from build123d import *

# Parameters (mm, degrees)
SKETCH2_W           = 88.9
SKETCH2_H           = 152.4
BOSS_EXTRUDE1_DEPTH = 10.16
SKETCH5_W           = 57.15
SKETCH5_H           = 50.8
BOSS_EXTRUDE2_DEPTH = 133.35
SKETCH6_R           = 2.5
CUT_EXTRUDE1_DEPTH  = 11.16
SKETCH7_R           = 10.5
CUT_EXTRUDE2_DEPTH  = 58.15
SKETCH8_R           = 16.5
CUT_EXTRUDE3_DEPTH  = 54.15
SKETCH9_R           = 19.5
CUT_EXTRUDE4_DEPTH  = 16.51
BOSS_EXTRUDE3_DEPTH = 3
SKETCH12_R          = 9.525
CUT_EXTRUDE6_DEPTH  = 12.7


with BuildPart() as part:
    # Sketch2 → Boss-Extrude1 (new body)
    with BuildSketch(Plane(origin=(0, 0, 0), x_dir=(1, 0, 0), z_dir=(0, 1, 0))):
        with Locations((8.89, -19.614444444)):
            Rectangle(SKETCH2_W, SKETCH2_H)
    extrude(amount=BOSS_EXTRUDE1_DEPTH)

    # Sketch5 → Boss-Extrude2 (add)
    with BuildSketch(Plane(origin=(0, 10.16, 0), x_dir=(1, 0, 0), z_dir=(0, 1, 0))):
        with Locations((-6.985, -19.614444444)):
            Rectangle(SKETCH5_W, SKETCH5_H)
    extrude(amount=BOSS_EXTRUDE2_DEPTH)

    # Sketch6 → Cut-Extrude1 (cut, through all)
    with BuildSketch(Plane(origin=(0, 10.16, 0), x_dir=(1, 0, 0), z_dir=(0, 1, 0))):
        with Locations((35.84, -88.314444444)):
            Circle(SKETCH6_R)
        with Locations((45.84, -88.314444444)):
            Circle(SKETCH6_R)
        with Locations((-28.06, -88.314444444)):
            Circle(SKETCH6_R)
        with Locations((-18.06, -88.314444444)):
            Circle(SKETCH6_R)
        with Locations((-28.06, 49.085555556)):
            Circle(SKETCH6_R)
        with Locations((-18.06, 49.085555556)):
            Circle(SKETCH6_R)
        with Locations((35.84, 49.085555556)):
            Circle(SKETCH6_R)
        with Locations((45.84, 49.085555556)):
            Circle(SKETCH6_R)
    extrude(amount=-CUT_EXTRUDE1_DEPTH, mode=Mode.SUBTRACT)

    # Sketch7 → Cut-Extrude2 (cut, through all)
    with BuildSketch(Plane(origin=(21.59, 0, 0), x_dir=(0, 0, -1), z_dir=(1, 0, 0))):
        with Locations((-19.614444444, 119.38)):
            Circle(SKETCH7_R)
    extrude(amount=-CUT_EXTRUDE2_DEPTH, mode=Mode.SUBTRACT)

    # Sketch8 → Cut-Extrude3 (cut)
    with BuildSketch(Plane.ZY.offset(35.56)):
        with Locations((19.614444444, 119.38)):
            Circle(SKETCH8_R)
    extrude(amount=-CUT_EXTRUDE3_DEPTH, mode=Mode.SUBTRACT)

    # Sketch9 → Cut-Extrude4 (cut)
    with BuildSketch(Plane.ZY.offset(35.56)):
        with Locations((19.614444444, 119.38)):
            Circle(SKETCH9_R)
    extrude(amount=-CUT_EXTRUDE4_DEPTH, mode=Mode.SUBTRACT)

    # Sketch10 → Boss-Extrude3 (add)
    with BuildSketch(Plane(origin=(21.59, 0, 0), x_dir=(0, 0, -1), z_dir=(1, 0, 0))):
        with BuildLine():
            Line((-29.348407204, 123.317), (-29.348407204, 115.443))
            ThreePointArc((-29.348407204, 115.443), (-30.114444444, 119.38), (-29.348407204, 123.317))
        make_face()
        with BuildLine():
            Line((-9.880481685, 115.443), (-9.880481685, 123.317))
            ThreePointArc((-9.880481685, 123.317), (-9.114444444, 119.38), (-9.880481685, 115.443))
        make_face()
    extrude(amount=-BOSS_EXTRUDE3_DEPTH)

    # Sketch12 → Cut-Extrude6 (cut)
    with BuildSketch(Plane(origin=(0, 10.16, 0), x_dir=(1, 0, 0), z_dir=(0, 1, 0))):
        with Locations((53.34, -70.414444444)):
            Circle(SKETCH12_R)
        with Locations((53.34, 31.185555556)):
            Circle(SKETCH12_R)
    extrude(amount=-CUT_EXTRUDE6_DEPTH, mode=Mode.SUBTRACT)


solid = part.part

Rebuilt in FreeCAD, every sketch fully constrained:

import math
import FreeCAD as App
import Part
import Sketcher
from FreeCAD import Vector
Q = App.Units.Quantity


def add_polygon(sketch, points):
    """Adds a closed chain of lines whose ends are joined by coincident constraints."""
    first, n = sketch.GeometryCount, len(points)
    for a, b in zip(points, points[1:] + points[:1]):
        sketch.addGeometry(Part.LineSegment(App.Vector(*a, 0), App.Vector(*b, 0)), False)
    for i in range(n):
        sketch.addConstraint(Sketcher.Constraint("Coincident", first + i, 2, first + (i + 1) % n, 1))

doc = App.newDocument("Part")
body = doc.addObject("PartDesign::Body", "Body")

# Sketch on XZ plane
sketch1 = doc.addObject("Sketcher::SketchObject", "Sketch")
body.addObject(sketch1)
sketch1.AttachmentSupport = (doc.XZ_Plane, [""])
sketch1.MapMode = "FlatFace"
add_polygon(sketch1, [(-36, -57), (-36, 96), (53, 96), (53, -57)])  # lines 0-3
sketch1.addConstraint([
    Sketcher.Constraint("Vertical", 0),
    Sketcher.Constraint("Horizontal", 1),
    Sketcher.Constraint("Vertical", 2),
    Sketcher.Constraint("Horizontal", 3),
    Sketcher.Constraint("DistanceY", 0, 1, 0, 2, Q("6 in")),
    Sketcher.Constraint("DistanceX", 1, 1, 1, 2, Q("3.5 in")),
    Sketcher.Constraint("DistanceX", 0, 2, -1, 1, Q("1.4 in")),
    Sketcher.Constraint("DistanceY", -1, 1, 0, 2, 95.814444),
])
pad1 = doc.addObject("PartDesign::Pad", "Pad")
body.addObject(pad1)
pad1.Profile = sketch1
pad1.Length = Q("0.4 in")
pad1.Reversed = True

# Sketch on XZ plane
sketch2 = doc.addObject("Sketcher::SketchObject", "Sketch001")
body.addObject(sketch2)
sketch2.AttachmentSupport = (doc.XZ_Plane, [""])
sketch2.MapMode = "FlatFace"
sketch2.AttachmentOffset = App.Placement(Vector(0, 0, -0.4 * 25.4), App.Rotation())
add_polygon(sketch2, [(-36, -6), (-36, 45), (22, 45), (22, -6)])  # lines 0-3
sketch2.addConstraint([
    Sketcher.Constraint("Vertical", 0),
    Sketcher.Constraint("Horizontal", 1),
    Sketcher.Constraint("Vertical", 2),
    Sketcher.Constraint("Horizontal", 3),
    Sketcher.Constraint("DistanceY", 0, 1, 0, 2, Q("2 in")),
    Sketcher.Constraint("DistanceX", 1, 1, 1, 2, Q("2.25 in")),
    Sketcher.Constraint("DistanceX", 0, 2, -1, 1, Q("1.4 in")),
    Sketcher.Constraint("DistanceY", -1, 1, 0, 2, 45.014444),
])
pad2 = doc.addObject("PartDesign::Pad", "Pad001")
body.addObject(pad2)
pad2.Profile = sketch2
pad2.Length = Q("5.25 in")
pad2.Reversed = True

# Sketch on XZ plane
sketch3 = doc.addObject("Sketcher::SketchObject", "Sketch002")
body.addObject(sketch3)
sketch3.AttachmentSupport = (doc.XZ_Plane, [""])
sketch3.MapMode = "FlatFace"
sketch3.AttachmentOffset = App.Placement(Vector(0, 0, -0.4 * 25.4), App.Rotation())
sketch3.addGeometry([
    Part.Circle(Vector(35.8, 88.3, 0), Vector(0, 0, 1), 2.5),  # 0
    Part.Circle(Vector(45.8, 88.3, 0), Vector(0, 0, 1), 2.5),  # 1
    Part.Circle(Vector(-28.1, 88.3, 0), Vector(0, 0, 1), 2.5),  # 2
    Part.Circle(Vector(-18.1, 88.3, 0), Vector(0, 0, 1), 2.5),  # 3
    Part.Circle(Vector(-28.1, -49.1, 0), Vector(0, 0, 1), 2.5),  # 4
    Part.Circle(Vector(-18.1, -49.1, 0), Vector(0, 0, 1), 2.5),  # 5
    Part.Circle(Vector(35.8, -49.1, 0), Vector(0, 0, 1), 2.5),  # 6
    Part.Circle(Vector(45.8, -49.1, 0), Vector(0, 0, 1), 2.5),  # 7
], False)
sketch3.addConstraint([
    Sketcher.Constraint("Equal", 0, 1),
    Sketcher.Constraint("Equal", 1, 2),
    Sketcher.Constraint("Equal", 2, 3),
    Sketcher.Constraint("Equal", 3, 4),
    Sketcher.Constraint("Equal", 4, 5),
    Sketcher.Constraint("Equal", 5, 6),
    Sketcher.Constraint("Equal", 6, 7),
    Sketcher.Constraint("Horizontal", 0, 3, 1, 3),
    Sketcher.Constraint("Horizontal", 1, 3, 2, 3),
    Sketcher.Constraint("Horizontal", 2, 3, 3, 3),
    Sketcher.Constraint("Horizontal", 4, 3, 5, 3),
    Sketcher.Constraint("Horizontal", 5, 3, 6, 3),
    Sketcher.Constraint("Horizontal", 6, 3, 7, 3),
    Sketcher.Constraint("Vertical", 2, 3, 4, 3),
    Sketcher.Constraint("Vertical", 3, 3, 5, 3),
    Sketcher.Constraint("Vertical", 0, 3, 6, 3),
    Sketcher.Constraint("Vertical", 1, 3, 7, 3),
    Sketcher.Constraint("Diameter", 0, 5.0),
    Sketcher.Constraint("DistanceX", -1, 1, 0, 3, 35.84),
    Sketcher.Constraint("DistanceX", -1, 1, 1, 3, 45.84),
    Sketcher.Constraint("DistanceX", 2, 3, -1, 1, 28.06),
    Sketcher.Constraint("DistanceX", 3, 3, -1, 1, 18.06),
    Sketcher.Constraint("DistanceY", 4, 3, 2, 3, 137.4),
    Sketcher.Constraint("DistanceY", -1, 1, 0, 3, 88.314444),
])
pocket1 = doc.addObject("PartDesign::Pocket", "Pocket")
body.addObject(pocket1)
pocket1.Profile = sketch3
pocket1.Type = "ThroughAll"
pocket1.Reversed = True

# Sketch on YZ plane
sketch4 = doc.addObject("Sketcher::SketchObject", "Sketch003")
body.addObject(sketch4)
sketch4.AttachmentSupport = (doc.YZ_Plane, [""])
sketch4.MapMode = "FlatFace"
sketch4.AttachmentOffset = App.Placement(Vector(0, 0, 0.85 * 25.4), App.Rotation())
sketch4.addGeometry(Part.Circle(Vector(119, 20, 0), Vector(0, 0, 1), 10), False)
sketch4.addConstraint([
    Sketcher.Constraint("DistanceX", -1, 1, 0, 3, Q("4.7 in")),
    Sketcher.Constraint("Diameter", 0, 21.0),
    Sketcher.Constraint("DistanceY", -1, 1, 0, 3, 19.614444),
])
pocket2 = doc.addObject("PartDesign::Pocket", "Pocket001")
body.addObject(pocket2)
pocket2.Profile = sketch4
pocket2.Type = "ThroughAll"

# Sketch on YZ plane
sketch5 = doc.addObject("Sketcher::SketchObject", "Sketch004")
body.addObject(sketch5)
sketch5.AttachmentSupport = (doc.YZ_Plane, [""])
sketch5.MapMode = "FlatFace"
sketch5.AttachmentOffset = App.Placement(Vector(0, 0, -1.4 * 25.4), App.Rotation())
sketch5.addGeometry(Part.Circle(Vector(119, 20, 0), Vector(0, 0, 1), 16), False)
sketch5.addConstraint([
    Sketcher.Constraint("DistanceX", -1, 1, 0, 3, Q("4.7 in")),
    Sketcher.Constraint("Diameter", 0, 33.0),
    Sketcher.Constraint("DistanceY", -1, 1, 0, 3, 19.614444),
])
pocket3 = doc.addObject("PartDesign::Pocket", "Pocket002")
body.addObject(pocket3)
pocket3.Profile = sketch5
pocket3.Length = 54.15
pocket3.Reversed = True

# Sketch on YZ plane
sketch6 = doc.addObject("Sketcher::SketchObject", "Sketch005")
body.addObject(sketch6)
sketch6.AttachmentSupport = (doc.YZ_Plane, [""])
sketch6.MapMode = "FlatFace"
sketch6.AttachmentOffset = App.Placement(Vector(0, 0, -1.4 * 25.4), App.Rotation())
sketch6.addGeometry(Part.Circle(Vector(119, 20, 0), Vector(0, 0, 1), 20), False)
sketch6.addConstraint([
    Sketcher.Constraint("DistanceX", -1, 1, 0, 3, Q("4.7 in")),
    Sketcher.Constraint("Diameter", 0, 39.0),
    Sketcher.Constraint("DistanceY", -1, 1, 0, 3, 19.614444),
])
pocket4 = doc.addObject("PartDesign::Pocket", "Pocket003")
body.addObject(pocket4)
pocket4.Profile = sketch6
pocket4.Length = Q("0.65 in")
pocket4.Reversed = True

# Sketch on YZ plane
sketch7 = doc.addObject("Sketcher::SketchObject", "Sketch006")
body.addObject(sketch7)
sketch7.AttachmentSupport = (doc.YZ_Plane, [""])
sketch7.MapMode = "FlatFace"
sketch7.AttachmentOffset = App.Placement(Vector(0, 0, 0.85 * 25.4), App.Rotation())
sketch7.addGeometry([
    Part.LineSegment(Vector(115, 29, 0), Vector(123, 29, 0)),
    Part.ArcOfCircle(Part.Circle(Vector(119, 20, 0), Vector(0, 0, 1), 11), math.radians(68), math.radians(112)),
    Part.LineSegment(Vector(123, 10, 0), Vector(115, 10, 0)),
    Part.ArcOfCircle(Part.Circle(Vector(119, 20, 0), Vector(0, 0, 1), 10), math.radians(-112), math.radians(-68)),
], False)
sketch7.addConstraint([
    Sketcher.Constraint("Coincident", 0, 1, 1, 2),
    Sketcher.Constraint("Coincident", 1, 1, 0, 2),
    Sketcher.Constraint("Coincident", 2, 1, 3, 2),
    Sketcher.Constraint("Coincident", 3, 1, 2, 2),
    Sketcher.Constraint("Horizontal", 0),
    Sketcher.Constraint("Horizontal", 2),
    Sketcher.Constraint("Coincident", 3, 3, 1, 3),
    Sketcher.Constraint("Equal", 1, 3),
    Sketcher.Constraint("Vertical", 1, 1, 2, 1),
    Sketcher.Constraint("DistanceX", 0, 1, 0, 2, Q("0.31 in")),
    Sketcher.Constraint("DistanceX", -1, 1, 1, 3, Q("4.7 in")),
    Sketcher.Constraint("Radius", 1, 10.5),
    Sketcher.Constraint("DistanceY", -1, 1, 2, 1, 9.880482),
])
pad3 = doc.addObject("PartDesign::Pad", "Pad002")
body.addObject(pad3)
pad3.Profile = sketch7
pad3.Length = 3
pad3.Reversed = True

# Sketch on XZ plane
sketch8 = doc.addObject("Sketcher::SketchObject", "Sketch007")
body.addObject(sketch8)
sketch8.AttachmentSupport = (doc.XZ_Plane, [""])
sketch8.MapMode = "FlatFace"
sketch8.AttachmentOffset = App.Placement(Vector(0, 0, -0.4 * 25.4), App.Rotation())
sketch8.addGeometry([
    Part.Circle(Vector(53, 70, 0), Vector(0, 0, 1), 10),
    Part.Circle(Vector(53, -31, 0), Vector(0, 0, 1), 10),
], False)
sketch8.addConstraint([
    Sketcher.Constraint("Equal", 0, 1),
    Sketcher.Constraint("Vertical", 0, 3, 1, 3),
    Sketcher.Constraint("Diameter", 0, Q("0.75 in")),
    Sketcher.Constraint("DistanceY", 1, 3, 0, 3, Q("4 in")),
    Sketcher.Constraint("DistanceX", -1, 1, 0, 3, Q("2.1 in")),
    Sketcher.Constraint("DistanceY", -1, 1, 0, 3, 70.414444),
])
pocket5 = doc.addObject("PartDesign::Pocket", "Pocket004")
body.addObject(pocket5)
pocket5.Profile = sketch8
pocket5.Length = Q("0.5 in")
pocket5.Reversed = True

doc.recompute()
